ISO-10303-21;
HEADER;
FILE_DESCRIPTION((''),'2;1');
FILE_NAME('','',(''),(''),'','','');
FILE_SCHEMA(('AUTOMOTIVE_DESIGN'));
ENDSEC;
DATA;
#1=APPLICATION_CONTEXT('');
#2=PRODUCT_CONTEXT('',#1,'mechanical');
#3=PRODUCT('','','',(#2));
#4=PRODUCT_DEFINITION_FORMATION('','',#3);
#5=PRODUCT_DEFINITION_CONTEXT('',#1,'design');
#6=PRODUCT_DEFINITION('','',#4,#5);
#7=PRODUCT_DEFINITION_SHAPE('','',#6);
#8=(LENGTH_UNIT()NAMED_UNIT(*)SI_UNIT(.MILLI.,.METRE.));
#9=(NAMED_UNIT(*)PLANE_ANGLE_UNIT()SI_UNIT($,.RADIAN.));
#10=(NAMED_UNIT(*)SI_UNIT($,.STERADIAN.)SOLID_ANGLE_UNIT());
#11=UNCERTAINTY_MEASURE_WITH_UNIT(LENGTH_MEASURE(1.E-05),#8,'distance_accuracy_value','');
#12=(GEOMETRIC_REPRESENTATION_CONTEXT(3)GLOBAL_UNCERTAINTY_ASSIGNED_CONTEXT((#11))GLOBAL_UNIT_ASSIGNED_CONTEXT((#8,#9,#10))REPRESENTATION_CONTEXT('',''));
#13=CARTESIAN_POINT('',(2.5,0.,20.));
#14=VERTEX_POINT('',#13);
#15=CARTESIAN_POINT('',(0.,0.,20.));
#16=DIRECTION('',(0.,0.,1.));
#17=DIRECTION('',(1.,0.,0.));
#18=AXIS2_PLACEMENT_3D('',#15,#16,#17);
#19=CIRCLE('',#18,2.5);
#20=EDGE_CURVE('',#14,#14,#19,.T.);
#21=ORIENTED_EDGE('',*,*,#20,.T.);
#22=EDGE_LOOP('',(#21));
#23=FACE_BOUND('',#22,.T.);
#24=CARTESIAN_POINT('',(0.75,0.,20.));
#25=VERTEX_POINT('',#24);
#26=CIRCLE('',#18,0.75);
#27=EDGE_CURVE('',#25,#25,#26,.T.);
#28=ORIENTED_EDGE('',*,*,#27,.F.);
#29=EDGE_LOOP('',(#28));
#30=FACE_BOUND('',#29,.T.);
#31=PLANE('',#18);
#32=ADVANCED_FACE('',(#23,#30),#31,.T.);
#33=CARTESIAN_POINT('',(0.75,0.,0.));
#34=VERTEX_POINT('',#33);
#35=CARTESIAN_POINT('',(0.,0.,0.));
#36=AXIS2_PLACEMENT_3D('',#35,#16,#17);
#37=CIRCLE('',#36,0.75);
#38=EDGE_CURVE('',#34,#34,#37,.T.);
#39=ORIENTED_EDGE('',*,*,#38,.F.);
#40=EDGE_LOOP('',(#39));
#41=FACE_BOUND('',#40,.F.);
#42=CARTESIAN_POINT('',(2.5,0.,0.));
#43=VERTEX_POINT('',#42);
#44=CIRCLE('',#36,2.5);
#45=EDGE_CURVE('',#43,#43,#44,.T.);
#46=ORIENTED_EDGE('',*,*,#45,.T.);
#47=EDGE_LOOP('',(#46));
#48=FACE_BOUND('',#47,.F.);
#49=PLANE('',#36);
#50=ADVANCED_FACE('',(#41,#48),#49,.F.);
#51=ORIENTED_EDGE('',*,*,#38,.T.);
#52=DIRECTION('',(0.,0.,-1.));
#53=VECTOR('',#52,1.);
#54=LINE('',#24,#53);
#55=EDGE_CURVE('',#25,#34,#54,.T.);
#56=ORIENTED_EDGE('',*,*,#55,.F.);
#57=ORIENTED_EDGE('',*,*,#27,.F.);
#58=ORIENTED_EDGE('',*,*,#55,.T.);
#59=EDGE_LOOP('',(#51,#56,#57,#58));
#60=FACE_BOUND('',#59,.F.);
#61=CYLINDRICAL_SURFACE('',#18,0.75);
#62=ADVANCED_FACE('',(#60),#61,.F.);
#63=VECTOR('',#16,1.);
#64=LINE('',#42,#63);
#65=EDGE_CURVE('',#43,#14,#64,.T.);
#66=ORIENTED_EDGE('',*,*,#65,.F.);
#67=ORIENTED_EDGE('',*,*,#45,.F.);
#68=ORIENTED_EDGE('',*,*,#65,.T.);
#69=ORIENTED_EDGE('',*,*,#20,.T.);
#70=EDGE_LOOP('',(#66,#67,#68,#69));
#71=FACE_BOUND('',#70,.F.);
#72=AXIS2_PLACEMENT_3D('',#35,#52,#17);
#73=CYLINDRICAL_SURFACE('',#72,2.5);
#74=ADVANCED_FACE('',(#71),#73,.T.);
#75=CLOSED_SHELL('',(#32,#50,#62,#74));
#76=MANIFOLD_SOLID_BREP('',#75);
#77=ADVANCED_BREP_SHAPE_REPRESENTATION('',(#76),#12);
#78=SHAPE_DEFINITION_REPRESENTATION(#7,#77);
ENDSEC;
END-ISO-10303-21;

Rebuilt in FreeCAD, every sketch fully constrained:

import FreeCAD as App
import Part
import Sketcher

doc = App.newDocument("Part")
body = doc.addObject("PartDesign::Body", "Body")

# Sketch on XY plane
sketch1 = body.newObject("Sketcher::SketchObject", "Sketch")
sketch1.AttachmentSupport = (doc.getObject("XY_Plane"), [""])
sketch1.MapMode = "FlatFace"
sketch1.addGeometry(Part.Circle(App.Vector(0, 0, 0), App.Vector(0, 0, 1), 2.5), False)
sketch1.addConstraint([
    Sketcher.Constraint("Coincident", 0, 3, -1, 1),
    Sketcher.Constraint("Diameter", 0, 5.0),
])
pad1 = body.newObject("PartDesign::Pad", "Pad")
pad1.Profile = sketch1
pad1.Length = 20

# Sketch on XY plane
sketch2 = body.newObject("Sketcher::SketchObject", "Sketch001")
sketch2.AttachmentSupport = (doc.getObject("XY_Plane"), [""])
sketch2.MapMode = "FlatFace"
sketch2.AttachmentOffset = App.Placement(App.Vector(0, 0, 20), App.Rotation())
sketch2.addGeometry(Part.Circle(App.Vector(0, 0, 0), App.Vector(0, 0, 1), 0.8), False)
sketch2.addConstraint([
    Sketcher.Constraint("Coincident", 0, 3, -1, 1),
    Sketcher.Constraint("Diameter", 0, 1.5),
])
pocket1 = body.newObject("PartDesign::Pocket", "Pocket")
pocket1.Profile = sketch2
pocket1.Length = 30

doc.recompute()
